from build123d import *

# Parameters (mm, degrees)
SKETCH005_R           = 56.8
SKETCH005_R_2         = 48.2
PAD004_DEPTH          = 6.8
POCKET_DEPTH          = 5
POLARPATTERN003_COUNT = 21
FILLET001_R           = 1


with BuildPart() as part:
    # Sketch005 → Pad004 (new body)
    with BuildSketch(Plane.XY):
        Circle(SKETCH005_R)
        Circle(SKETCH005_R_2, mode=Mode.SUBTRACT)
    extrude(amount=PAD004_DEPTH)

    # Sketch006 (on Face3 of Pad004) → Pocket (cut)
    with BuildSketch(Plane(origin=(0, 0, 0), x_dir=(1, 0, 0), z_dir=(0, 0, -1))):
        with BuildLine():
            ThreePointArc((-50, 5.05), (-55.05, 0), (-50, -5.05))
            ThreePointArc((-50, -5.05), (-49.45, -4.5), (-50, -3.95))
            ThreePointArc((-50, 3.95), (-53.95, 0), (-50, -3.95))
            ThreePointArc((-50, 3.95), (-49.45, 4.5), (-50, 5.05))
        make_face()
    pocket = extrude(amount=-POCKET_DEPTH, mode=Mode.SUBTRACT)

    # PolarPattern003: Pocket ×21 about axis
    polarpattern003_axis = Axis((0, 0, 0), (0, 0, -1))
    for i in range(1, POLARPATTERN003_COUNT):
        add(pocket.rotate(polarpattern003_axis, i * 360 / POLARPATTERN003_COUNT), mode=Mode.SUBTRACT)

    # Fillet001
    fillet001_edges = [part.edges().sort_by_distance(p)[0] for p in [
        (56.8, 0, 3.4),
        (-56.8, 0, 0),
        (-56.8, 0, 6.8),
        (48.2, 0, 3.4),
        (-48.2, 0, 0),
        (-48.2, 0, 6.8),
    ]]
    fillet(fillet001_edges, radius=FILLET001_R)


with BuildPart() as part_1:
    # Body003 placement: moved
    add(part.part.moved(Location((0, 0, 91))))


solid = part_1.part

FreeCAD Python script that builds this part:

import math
import FreeCAD as App
import Part
import Sketcher
from FreeCAD import Vector


def edges_at(feature, points):
    """Names of the edges that pass closest to the given points."""
    edges = feature.Shape.Edges
    near = lambda p: min(range(len(edges)), key=lambda i: edges[i].distToShape(Part.Vertex(*p))[0])
    return sorted({f"Edge{near(p) + 1}" for p in points})

doc = App.newDocument("Part")
params = doc.addObject("Spreadsheet::Sheet", "Params")
for row, (alias, value) in enumerate([
    ("sketch1_diameter", "113.6 mm"),
    ("sketch1_diameter2", "96.4 mm"),
    ("pad1_length", "6.8 mm"),
    ("sketch2_radius", "5.05 mm"),
    ("sketch2_radius2", "0.55 mm"),
    ("pocket1_length", "5 mm"),
    ("fillet_radius", "1 mm"),
], start=1):
    params.set(f"A{row}", alias)
    params.set(f"B{row}", "=" + value)
    params.setAlias(f"B{row}", alias)

body = doc.addObject("PartDesign::Body", "Body")

sketch1 = body.newObject("Sketcher::SketchObject", "Sketch")
sketch1.AttachmentSupport = (doc.getObject("XY_Plane"), [""])
sketch1.MapMode = "FlatFace"
sketch1.addGeometry([
    Part.Circle(Vector(0, 0, 0), Vector(0, 0, 1), 57),
    Part.Circle(Vector(0, 0, 0), Vector(0, 0, 1), 48),
], False)
sketch1.addConstraint([
    Sketcher.Constraint("Coincident", 0, 3, -1, 1),
    Sketcher.Constraint("Coincident", 1, 3, -1, 1),
    Sketcher.Constraint("Diameter", 0, 113.6),
    Sketcher.Constraint("Diameter", 1, 96.4),
])
sketch1.setExpression("Constraints[2]", "Params.sketch1_diameter")
sketch1.setExpression("Constraints[3]", "Params.sketch1_diameter2")
pad1 = body.newObject("PartDesign::Pad", "Pad")
pad1.Profile = sketch1
pad1.setExpression("Length", "Params.pad1_length")

sketch2 = body.newObject("Sketcher::SketchObject", "Sketch001")
sketch2.AttachmentSupport = (doc.getObject("XY_Plane"), [""])
sketch2.MapMode = "FlatFace"
sketch2.addGeometry([
    Part.ArcOfCircle(Part.Circle(Vector(-50, 0, 0), Vector(0, 0, 1), 5), math.radians(90), math.radians(270)),
    Part.ArcOfCircle(Part.Circle(Vector(-50, 4.5, 0), Vector(0, 0, 1), 0.6), math.radians(-90), math.radians(90)),
    Part.ArcOfCircle(Part.Circle(Vector(-50, 0, 0), Vector(0, 0, 1), 4), math.radians(90), math.radians(270)),
    Part.ArcOfCircle(Part.Circle(Vector(-50, -4.5, 0), Vector(0, 0, 1), 0.6), math.radians(-90), math.radians(90)),
], False)
sketch2.addConstraint([
    Sketcher.Constraint("Tangent", 0, 1, 1, 2),
    Sketcher.Constraint("Tangent", 1, 1, 2, 1),
    Sketcher.Constraint("Tangent", 2, 2, 3, 2),
    Sketcher.Constraint("Tangent", 3, 1, 0, 2),
    Sketcher.Constraint("Coincident", 2, 3, 0, 3),
    Sketcher.Constraint("Symmetric", 1, 3, 3, 3, -1),
    Sketcher.Constraint("Vertical", 0, 3, 1, 3),
    Sketcher.Constraint("Radius", 0, 5.05),
    Sketcher.Constraint("Radius", 1, 0.55),
    Sketcher.Constraint("DistanceX", 0, 3, -1, 1, 50.0),
])
sketch2.setExpression("Constraints[7]", "Params.sketch2_radius")
sketch2.setExpression("Constraints[8]", "Params.sketch2_radius2")
pocket1 = body.newObject("PartDesign::Pocket", "Pocket")
pocket1.Profile = sketch2
pocket1.setExpression("Length", "Params.pocket1_length")
pocket1.Reversed = True
doc.recompute()

polarpattern = body.newObject("PartDesign::PolarPattern", "PolarPattern")
polarpattern.Originals = [pocket1]
polarpattern.Axis = (doc.getObject("Z_Axis"), [""])
polarpattern.Angle = 360
polarpattern.Occurrences = 21
body.Tip = polarpattern
doc.recompute()

fillet = body.newObject("PartDesign::Fillet", "Fillet")
fillet.Base = (polarpattern, edges_at(polarpattern, [
    (56.8, 0, 3.4),
    (-56.8, 0, 0),
    (-56.8, 0, 6.8),
    (48.2, 0, 3.4),
    (-48.2, 0, 0),
    (-48.2, 0, 6.8),
]))
fillet.setExpression("Radius", "Params.fillet_radius")
body2 = doc.addObject("PartDesign::Body", "Body001")
doc.recompute()

body.Placement = App.Placement(Vector(0, 0, 91), App.Rotation(Vector(0, 0, 1), 0))
boolean = body2.newObject("PartDesign::Boolean", "Boolean")
boolean.Type = "Fuse"
boolean.addObjects([body])

doc.recompute()
